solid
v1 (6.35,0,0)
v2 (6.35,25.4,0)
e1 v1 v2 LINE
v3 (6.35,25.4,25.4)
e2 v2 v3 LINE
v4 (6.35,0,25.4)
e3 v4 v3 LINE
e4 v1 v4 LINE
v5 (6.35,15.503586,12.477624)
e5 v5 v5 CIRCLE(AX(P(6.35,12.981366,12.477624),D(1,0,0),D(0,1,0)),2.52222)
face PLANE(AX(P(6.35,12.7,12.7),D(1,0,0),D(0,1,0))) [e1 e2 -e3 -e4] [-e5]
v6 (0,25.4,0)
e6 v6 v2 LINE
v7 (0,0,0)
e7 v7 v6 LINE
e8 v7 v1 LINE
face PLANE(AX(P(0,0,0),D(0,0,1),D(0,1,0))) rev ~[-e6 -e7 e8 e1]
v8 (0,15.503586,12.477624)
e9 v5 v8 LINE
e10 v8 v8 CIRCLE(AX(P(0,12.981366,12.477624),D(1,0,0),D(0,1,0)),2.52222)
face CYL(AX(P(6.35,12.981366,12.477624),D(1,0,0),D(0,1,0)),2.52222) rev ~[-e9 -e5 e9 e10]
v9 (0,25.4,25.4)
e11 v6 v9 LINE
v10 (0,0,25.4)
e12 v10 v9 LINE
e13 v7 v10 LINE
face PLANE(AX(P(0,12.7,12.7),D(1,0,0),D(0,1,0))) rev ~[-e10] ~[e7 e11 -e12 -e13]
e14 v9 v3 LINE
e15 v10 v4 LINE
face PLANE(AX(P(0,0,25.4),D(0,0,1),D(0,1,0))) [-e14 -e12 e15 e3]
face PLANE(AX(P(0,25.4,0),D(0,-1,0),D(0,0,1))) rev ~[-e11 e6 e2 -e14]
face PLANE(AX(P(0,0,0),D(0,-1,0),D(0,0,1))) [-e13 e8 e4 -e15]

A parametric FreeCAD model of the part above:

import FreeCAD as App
import Part
import Sketcher

V = App.Vector
Q = App.Units.Quantity

doc = App.newDocument("Part")
body = doc.addObject("PartDesign::Body", "Body")

# Sketch on YZ plane
sketch1 = doc.addObject("Sketcher::SketchObject", "Sketch")
body.addObject(sketch1)
sketch1.AttachmentSupport = (doc.YZ_Plane, [""])
sketch1.MapMode = "FlatFace"
sketch1.addGeometry(Part.LineSegment(V(0, 25, 0), V(0, 0, 0)), False)
sketch1.addGeometry(Part.LineSegment(V(0, 0, 0), V(25, 0, 0)), False)
sketch1.addGeometry(Part.LineSegment(V(25, 0, 0), V(25, 25, 0)), False)
sketch1.addGeometry(Part.LineSegment(V(25, 25, 0), V(0, 25, 0)), False)
sketch1.addConstraint(Sketcher.Constraint("Coincident", 0, 2, 1, 1))
sketch1.addConstraint(Sketcher.Constraint("Coincident", 1, 2, 2, 1))
sketch1.addConstraint(Sketcher.Constraint("Coincident", 2, 2, 3, 1))
sketch1.addConstraint(Sketcher.Constraint("Coincident", 3, 2, 0, 1))
sketch1.addConstraint(Sketcher.Constraint("Vertical", 0))
sketch1.addConstraint(Sketcher.Constraint("Horizontal", 1))
sketch1.addConstraint(Sketcher.Constraint("Vertical", 2))
sketch1.addConstraint(Sketcher.Constraint("Horizontal", 3))
sketch1.addConstraint(Sketcher.Constraint("Coincident", 0, 2, -1, 1))
sketch1.addConstraint(Sketcher.Constraint("Equal", 3, 0))
sketch1.addConstraint(Sketcher.Constraint("DistanceX", 1, 1, 1, 2, Q("1 in")))
pad1 = doc.addObject("PartDesign::Pad", "Pad")
body.addObject(pad1)
pad1.Profile = sketch1
pad1.Length = Q("0.25 in")

# Sketch on YZ plane
sketch2 = doc.addObject("Sketcher::SketchObject", "Sketch001")
body.addObject(sketch2)
sketch2.AttachmentSupport = (doc.YZ_Plane, [""])
sketch2.MapMode = "FlatFace"
sketch2.AttachmentOffset = App.Placement(V(0, 0, 0.25 * 25.4), App.Rotation())
sketch2.addGeometry(Part.Circle(V(13, 12.5, 0), V(0, 0, 1), 2.5), False)
sketch2.addConstraint(Sketcher.Constraint("Diameter", 0, Q("0.1986 in")))
sketch2.addConstraint(Sketcher.Constraint("DistanceX", -1, 1, 0, 3, 12.981366))
sketch2.addConstraint(Sketcher.Constraint("DistanceY", -1, 1, 0, 3, 12.477624))
pocket1 = doc.addObject("PartDesign::Pocket", "Pocket")
body.addObject(pocket1)
pocket1.Profile = sketch2
pocket1.Length = Q("1 in")

doc.recompute()
